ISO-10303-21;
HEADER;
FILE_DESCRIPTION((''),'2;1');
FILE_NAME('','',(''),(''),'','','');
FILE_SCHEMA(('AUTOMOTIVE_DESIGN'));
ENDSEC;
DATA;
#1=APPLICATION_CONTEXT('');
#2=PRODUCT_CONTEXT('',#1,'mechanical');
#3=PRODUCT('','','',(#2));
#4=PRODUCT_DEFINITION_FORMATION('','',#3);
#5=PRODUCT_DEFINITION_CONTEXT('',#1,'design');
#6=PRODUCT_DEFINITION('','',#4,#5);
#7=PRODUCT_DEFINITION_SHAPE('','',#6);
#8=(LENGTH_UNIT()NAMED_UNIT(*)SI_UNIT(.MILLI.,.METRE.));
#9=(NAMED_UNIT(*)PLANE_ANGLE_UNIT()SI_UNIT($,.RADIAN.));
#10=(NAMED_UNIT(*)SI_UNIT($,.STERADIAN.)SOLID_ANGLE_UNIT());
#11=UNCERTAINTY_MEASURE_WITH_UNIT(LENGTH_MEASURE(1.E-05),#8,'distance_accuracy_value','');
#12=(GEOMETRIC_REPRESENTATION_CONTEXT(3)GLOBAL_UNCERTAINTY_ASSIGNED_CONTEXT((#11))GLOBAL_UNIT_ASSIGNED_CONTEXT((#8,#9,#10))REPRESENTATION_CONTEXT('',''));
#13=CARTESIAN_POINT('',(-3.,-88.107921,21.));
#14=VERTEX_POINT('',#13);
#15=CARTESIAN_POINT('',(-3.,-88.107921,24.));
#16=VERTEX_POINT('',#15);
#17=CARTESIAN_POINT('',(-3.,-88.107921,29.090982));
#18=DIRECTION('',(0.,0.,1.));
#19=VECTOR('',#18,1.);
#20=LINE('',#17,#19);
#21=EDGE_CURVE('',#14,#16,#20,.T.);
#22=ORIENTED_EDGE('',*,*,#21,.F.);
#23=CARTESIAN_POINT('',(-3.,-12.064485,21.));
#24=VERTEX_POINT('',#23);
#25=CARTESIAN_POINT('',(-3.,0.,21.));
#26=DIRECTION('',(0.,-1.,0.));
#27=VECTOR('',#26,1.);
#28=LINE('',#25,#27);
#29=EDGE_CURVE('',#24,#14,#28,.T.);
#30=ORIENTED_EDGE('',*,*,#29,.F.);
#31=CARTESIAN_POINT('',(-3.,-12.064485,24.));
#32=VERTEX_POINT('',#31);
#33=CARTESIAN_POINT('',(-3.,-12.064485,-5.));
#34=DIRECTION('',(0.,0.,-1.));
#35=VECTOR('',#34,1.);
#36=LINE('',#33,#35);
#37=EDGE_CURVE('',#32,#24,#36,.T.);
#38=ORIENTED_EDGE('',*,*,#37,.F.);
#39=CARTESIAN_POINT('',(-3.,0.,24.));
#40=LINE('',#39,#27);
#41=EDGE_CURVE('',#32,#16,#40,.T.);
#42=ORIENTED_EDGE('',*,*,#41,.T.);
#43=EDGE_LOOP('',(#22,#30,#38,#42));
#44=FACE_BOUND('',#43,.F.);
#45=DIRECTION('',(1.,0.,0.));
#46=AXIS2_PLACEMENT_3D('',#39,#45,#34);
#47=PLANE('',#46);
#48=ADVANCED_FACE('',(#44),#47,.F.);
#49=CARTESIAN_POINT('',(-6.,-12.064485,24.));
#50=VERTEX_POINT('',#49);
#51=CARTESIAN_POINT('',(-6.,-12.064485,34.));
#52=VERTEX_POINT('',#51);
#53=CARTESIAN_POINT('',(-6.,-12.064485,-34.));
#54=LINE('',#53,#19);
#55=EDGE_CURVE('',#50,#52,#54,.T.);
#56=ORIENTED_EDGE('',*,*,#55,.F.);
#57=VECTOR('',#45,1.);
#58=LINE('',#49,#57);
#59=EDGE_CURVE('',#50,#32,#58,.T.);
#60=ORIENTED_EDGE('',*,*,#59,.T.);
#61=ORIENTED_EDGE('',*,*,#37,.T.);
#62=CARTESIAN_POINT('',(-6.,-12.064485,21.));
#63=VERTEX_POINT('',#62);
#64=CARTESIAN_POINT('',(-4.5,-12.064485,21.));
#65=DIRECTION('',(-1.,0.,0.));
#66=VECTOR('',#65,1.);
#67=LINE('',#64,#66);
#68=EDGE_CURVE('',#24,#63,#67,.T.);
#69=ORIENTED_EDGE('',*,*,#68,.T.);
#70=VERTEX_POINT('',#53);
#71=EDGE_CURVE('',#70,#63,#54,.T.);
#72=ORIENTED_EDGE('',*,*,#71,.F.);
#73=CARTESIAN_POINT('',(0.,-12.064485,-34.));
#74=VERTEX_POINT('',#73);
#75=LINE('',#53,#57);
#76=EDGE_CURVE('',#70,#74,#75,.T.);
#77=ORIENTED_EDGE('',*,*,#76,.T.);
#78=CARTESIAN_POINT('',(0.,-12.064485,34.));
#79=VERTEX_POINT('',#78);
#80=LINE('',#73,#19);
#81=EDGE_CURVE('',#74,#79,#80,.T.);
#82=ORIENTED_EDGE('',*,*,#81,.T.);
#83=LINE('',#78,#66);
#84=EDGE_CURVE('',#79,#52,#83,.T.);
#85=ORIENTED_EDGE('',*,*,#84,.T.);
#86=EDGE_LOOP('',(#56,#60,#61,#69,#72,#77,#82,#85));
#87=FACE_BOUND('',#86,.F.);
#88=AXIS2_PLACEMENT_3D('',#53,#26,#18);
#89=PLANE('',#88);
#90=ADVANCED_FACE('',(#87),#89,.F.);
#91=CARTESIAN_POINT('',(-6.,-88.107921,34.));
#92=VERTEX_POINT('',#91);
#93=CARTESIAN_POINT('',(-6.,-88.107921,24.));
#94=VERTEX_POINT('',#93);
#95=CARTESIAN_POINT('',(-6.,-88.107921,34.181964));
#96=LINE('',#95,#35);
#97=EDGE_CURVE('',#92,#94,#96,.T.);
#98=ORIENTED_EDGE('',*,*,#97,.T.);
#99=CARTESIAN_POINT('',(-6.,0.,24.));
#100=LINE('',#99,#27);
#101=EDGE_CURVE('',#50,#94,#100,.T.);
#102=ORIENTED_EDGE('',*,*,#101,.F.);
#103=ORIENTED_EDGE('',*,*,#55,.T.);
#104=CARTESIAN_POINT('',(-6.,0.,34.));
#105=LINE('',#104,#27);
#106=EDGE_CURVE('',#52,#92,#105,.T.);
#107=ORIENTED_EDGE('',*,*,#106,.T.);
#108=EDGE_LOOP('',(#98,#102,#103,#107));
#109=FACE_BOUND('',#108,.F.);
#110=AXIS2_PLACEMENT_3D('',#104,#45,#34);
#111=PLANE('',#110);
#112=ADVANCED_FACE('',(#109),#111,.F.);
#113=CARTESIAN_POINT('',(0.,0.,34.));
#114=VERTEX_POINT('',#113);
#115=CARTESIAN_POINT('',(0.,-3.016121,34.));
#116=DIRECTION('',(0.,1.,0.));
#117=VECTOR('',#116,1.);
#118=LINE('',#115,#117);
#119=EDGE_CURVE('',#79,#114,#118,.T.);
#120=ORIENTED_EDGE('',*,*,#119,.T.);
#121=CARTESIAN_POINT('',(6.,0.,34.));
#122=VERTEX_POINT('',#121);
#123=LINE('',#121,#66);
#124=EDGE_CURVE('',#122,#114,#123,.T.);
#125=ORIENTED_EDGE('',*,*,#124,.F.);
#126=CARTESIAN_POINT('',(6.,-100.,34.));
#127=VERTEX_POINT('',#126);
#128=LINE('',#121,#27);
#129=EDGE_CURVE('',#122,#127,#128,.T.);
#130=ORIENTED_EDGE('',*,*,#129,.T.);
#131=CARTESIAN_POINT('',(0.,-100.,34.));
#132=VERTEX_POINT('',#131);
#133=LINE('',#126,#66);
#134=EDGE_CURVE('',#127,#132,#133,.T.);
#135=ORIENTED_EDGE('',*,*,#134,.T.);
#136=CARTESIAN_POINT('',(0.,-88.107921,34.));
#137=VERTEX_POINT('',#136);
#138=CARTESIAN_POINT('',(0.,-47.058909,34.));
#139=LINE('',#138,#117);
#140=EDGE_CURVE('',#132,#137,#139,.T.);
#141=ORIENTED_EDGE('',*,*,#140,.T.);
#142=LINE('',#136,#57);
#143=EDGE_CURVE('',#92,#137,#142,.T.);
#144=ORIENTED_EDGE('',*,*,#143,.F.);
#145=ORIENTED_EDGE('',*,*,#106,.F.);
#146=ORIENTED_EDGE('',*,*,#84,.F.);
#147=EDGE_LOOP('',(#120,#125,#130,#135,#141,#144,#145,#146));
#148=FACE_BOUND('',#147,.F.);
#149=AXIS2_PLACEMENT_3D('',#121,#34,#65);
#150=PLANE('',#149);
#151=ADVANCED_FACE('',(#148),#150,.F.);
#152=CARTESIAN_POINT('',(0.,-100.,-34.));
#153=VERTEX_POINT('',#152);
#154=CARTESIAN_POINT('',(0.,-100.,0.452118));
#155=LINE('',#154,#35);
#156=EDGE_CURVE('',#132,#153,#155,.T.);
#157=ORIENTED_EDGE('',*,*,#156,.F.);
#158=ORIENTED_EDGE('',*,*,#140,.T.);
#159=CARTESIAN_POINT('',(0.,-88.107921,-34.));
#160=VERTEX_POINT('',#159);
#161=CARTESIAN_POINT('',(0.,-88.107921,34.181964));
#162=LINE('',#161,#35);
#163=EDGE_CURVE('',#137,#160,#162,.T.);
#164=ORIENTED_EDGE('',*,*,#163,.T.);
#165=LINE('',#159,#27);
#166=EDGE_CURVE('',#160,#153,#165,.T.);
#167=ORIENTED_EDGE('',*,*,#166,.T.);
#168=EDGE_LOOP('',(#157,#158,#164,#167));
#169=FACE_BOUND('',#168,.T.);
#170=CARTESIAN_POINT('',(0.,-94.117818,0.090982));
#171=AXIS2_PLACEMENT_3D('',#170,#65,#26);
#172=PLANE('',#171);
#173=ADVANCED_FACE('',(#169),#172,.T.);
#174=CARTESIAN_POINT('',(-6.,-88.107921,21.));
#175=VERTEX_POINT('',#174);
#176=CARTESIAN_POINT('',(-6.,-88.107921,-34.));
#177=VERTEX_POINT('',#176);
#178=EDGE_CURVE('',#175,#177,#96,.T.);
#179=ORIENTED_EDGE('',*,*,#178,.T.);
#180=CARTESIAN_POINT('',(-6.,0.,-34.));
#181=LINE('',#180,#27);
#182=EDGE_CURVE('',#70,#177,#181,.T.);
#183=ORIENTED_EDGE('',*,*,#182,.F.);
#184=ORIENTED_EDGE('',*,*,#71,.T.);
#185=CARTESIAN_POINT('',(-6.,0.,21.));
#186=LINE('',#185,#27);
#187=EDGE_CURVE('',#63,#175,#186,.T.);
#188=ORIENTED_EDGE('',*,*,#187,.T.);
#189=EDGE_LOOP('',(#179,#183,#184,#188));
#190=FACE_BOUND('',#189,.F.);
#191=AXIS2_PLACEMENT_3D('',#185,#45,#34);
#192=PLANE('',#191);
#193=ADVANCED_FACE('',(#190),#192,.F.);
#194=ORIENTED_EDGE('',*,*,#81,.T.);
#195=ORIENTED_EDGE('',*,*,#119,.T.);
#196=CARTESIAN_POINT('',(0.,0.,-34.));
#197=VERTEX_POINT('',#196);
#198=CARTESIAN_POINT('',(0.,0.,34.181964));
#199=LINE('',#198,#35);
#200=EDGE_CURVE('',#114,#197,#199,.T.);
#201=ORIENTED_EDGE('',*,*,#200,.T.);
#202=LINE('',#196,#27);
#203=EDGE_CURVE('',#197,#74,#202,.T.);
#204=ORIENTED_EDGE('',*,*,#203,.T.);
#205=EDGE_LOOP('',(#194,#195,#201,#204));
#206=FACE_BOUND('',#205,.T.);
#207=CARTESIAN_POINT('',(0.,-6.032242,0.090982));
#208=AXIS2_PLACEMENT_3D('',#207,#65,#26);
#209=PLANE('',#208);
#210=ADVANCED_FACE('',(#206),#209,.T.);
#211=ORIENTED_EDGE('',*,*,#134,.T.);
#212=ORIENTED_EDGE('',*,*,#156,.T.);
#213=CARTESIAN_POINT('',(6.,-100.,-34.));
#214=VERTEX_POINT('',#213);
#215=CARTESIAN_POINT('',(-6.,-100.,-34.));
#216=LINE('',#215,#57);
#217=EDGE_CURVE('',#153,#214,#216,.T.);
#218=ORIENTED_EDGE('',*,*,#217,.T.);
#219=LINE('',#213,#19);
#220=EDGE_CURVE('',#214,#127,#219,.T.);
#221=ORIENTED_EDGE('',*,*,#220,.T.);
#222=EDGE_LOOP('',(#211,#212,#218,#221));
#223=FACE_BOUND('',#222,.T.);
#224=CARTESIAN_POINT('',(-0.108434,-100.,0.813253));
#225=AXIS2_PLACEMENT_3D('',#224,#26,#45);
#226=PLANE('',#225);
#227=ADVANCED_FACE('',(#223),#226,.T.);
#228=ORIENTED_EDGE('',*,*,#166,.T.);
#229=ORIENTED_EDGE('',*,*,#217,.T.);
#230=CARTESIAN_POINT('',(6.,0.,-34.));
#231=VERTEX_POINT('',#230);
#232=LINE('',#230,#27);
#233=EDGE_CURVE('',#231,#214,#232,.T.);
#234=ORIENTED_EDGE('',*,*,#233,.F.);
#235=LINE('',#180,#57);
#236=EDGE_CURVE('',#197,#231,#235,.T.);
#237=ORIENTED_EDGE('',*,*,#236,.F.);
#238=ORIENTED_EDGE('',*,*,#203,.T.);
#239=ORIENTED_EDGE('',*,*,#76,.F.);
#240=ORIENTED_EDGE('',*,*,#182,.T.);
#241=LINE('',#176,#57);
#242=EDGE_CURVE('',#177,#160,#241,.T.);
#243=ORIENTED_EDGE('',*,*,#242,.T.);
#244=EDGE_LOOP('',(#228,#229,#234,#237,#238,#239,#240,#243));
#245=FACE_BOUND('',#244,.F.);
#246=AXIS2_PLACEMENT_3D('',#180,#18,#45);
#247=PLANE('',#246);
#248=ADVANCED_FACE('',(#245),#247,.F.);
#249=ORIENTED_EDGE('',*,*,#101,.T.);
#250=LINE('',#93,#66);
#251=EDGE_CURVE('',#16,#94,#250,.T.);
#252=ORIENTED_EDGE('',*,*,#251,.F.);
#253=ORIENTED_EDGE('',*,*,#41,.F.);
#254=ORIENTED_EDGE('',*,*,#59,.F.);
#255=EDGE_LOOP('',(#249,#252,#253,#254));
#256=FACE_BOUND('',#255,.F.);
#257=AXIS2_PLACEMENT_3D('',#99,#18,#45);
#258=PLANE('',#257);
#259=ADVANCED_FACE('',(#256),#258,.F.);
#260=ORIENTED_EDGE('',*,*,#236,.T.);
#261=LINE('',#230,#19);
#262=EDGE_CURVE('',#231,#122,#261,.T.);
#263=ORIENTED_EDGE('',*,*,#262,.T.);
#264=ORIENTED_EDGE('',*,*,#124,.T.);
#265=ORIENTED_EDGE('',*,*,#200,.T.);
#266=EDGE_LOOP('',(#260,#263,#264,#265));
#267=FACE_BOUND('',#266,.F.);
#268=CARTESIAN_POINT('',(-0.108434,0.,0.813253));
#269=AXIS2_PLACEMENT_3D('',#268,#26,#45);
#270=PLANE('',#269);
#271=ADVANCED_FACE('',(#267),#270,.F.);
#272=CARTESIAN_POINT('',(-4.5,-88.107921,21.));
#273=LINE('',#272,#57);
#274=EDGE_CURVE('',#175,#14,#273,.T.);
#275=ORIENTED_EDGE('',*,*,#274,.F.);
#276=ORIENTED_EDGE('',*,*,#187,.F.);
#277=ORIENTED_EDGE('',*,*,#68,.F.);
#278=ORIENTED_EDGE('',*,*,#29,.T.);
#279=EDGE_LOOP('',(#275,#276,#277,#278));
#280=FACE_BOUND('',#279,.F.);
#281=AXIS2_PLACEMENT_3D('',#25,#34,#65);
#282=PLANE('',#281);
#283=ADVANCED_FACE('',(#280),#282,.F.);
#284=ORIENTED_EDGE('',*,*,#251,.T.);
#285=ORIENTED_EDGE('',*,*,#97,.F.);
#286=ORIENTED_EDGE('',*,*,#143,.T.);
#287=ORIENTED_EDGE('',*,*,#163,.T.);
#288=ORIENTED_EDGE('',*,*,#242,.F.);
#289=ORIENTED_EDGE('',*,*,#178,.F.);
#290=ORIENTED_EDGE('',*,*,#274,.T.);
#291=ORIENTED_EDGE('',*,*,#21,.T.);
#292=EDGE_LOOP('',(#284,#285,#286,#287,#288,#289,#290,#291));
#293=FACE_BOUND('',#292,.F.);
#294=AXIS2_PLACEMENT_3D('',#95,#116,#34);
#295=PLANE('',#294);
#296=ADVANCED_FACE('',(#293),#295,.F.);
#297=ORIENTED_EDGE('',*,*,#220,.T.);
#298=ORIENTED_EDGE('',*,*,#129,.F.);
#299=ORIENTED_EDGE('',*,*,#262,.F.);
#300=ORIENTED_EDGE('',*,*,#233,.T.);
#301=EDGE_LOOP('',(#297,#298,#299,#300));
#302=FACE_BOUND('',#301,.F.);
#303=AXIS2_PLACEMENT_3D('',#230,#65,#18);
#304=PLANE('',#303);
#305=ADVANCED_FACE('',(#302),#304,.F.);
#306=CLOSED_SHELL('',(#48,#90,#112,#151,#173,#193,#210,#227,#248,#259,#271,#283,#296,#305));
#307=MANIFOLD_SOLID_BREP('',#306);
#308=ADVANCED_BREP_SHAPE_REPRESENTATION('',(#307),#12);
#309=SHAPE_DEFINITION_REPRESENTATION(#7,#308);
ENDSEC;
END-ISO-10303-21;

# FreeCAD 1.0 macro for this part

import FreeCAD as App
import Part
import Sketcher
from FreeCAD import Vector

doc = App.newDocument("Part")
body = doc.addObject("PartDesign::Body", "Body")

sketch1 = body.newObject("Sketcher::SketchObject", "Sketch")
sketch1.AttachmentSupport = (doc.getObject("XZ_Plane"), [""])
sketch1.MapMode = "FlatFace"
sketch1.addGeometry(Part.LineSegment(Vector(-6, -34, 0), Vector(6, -34, 0)), False)
sketch1.addGeometry(Part.LineSegment(Vector(6, -34, 0), Vector(6, 34, 0)), False)
sketch1.addGeometry(Part.LineSegment(Vector(6, 34, 0), Vector(-6, 34, 0)), False)
sketch1.addGeometry(Part.LineSegment(Vector(-6, 34, 0), Vector(-6, 24, 0)), False)
sketch1.addGeometry(Part.LineSegment(Vector(-6, 24, 0), Vector(-3, 24, 0)), False)
sketch1.addGeometry(Part.LineSegment(Vector(-3, 24, 0), Vector(-3, 21, 0)), False)
sketch1.addGeometry(Part.LineSegment(Vector(-3, 21, 0), Vector(-6, 21, 0)), False)
sketch1.addGeometry(Part.LineSegment(Vector(-6, 21, 0), Vector(-6, -34, 0)), False)
sketch1.addConstraint(Sketcher.Constraint("Coincident", 0, 2, 1, 1))
sketch1.addConstraint(Sketcher.Constraint("Coincident", 1, 2, 2, 1))
sketch1.addConstraint(Sketcher.Constraint("Coincident", 2, 2, 3, 1))
sketch1.addConstraint(Sketcher.Constraint("Coincident", 3, 2, 4, 1))
sketch1.addConstraint(Sketcher.Constraint("Coincident", 4, 2, 5, 1))
sketch1.addConstraint(Sketcher.Constraint("Coincident", 5, 2, 6, 1))
sketch1.addConstraint(Sketcher.Constraint("Coincident", 6, 2, 7, 1))
sketch1.addConstraint(Sketcher.Constraint("Coincident", 7, 2, 0, 1))
sketch1.addConstraint(Sketcher.Constraint("Horizontal", 0))
sketch1.addConstraint(Sketcher.Constraint("Vertical", 1))
sketch1.addConstraint(Sketcher.Constraint("Horizontal", 2))
sketch1.addConstraint(Sketcher.Constraint("Vertical", 3))
sketch1.addConstraint(Sketcher.Constraint("Horizontal", 4))
sketch1.addConstraint(Sketcher.Constraint("Vertical", 5))
sketch1.addConstraint(Sketcher.Constraint("Horizontal", 6))
sketch1.addConstraint(Sketcher.Constraint("Vertical", 7))
sketch1.addConstraint(Sketcher.Constraint("Symmetric", 0, 2, 2, 2, -1, 1))
sketch1.addConstraint(Sketcher.Constraint("Vertical", 3, 2, 6, 2))
sketch1.addConstraint(Sketcher.Constraint("Equal", 6, 5))
sketch1.addConstraint(Sketcher.Constraint("DistanceX", 0, 1, 0, 2, 12.0))
sketch1.addConstraint(Sketcher.Constraint("DistanceX", 4, 1, 4, 2, 3.0))
sketch1.addConstraint(Sketcher.Constraint("DistanceY", 1, 1, 1, 2, 68.0))
sketch1.addConstraint(Sketcher.Constraint("DistanceY", 3, 2, 3, 1, 10.0))
pad1 = body.newObject("PartDesign::Pad", "Pad")
pad1.Profile = sketch1
pad1.Length = 100

sketch2 = body.newObject("Sketcher::SketchObject", "Sketch001")
sketch2.AttachmentSupport = (doc.getObject("YZ_Plane"), [""])
sketch2.MapMode = "FlatFace"
sketch2.AttachmentOffset = App.Placement(Vector(0, 0, -6), App.Rotation())
sketch2.addGeometry(Part.LineSegment(Vector(-100, -34, 0), Vector(-100, 34, 0)), False)
sketch2.addGeometry(Part.LineSegment(Vector(-100, 34, 0), Vector(-88, 34, 0)), False)
sketch2.addGeometry(Part.LineSegment(Vector(-88, 34, 0), Vector(-88, -34, 0)), False)
sketch2.addGeometry(Part.LineSegment(Vector(-88, -34, 0), Vector(-100, -34, 0)), False)
sketch2.addConstraint(Sketcher.Constraint("Coincident", 0, 2, 1, 1))
sketch2.addConstraint(Sketcher.Constraint("Coincident", 1, 2, 2, 1))
sketch2.addConstraint(Sketcher.Constraint("Coincident", 2, 2, 3, 1))
sketch2.addConstraint(Sketcher.Constraint("Coincident", 3, 2, 0, 1))
sketch2.addConstraint(Sketcher.Constraint("Vertical", 0))
sketch2.addConstraint(Sketcher.Constraint("Horizontal", 1))
sketch2.addConstraint(Sketcher.Constraint("Vertical", 2))
sketch2.addConstraint(Sketcher.Constraint("Horizontal", 3))
sketch2.addConstraint(Sketcher.Constraint("DistanceY", 2, 2, -1, 1, 34.0))
sketch2.addConstraint(Sketcher.Constraint("DistanceX", 1, 1, 1, 2, 12.019794))
sketch2.addConstraint(Sketcher.Constraint("DistanceY", 0, 1, 0, 2, 68.181964))
sketch2.addConstraint(Sketcher.Constraint("DistanceX", 1, 2, -1, 1, 88.107921))
pocket1 = body.newObject("PartDesign::Pocket", "Pocket")
pocket1.Profile = sketch2
pocket1.Length = 6
pocket1.Reversed = True

sketch3 = body.newObject("Sketcher::SketchObject", "Sketch002")
sketch3.AttachmentSupport = (doc.getObject("YZ_Plane"), [""])
sketch3.MapMode = "FlatFace"
sketch3.AttachmentOffset = App.Placement(Vector(0, 0, -6), App.Rotation())
sketch3.addGeometry(Part.LineSegment(Vector(-12, 34, 0), Vector(0, 34, 0)), False)
sketch3.addGeometry(Part.LineSegment(Vector(0, 34, 0), Vector(0, -34, 0)), False)
sketch3.addGeometry(Part.LineSegment(Vector(0, -34, 0), Vector(-12, -34, 0)), False)
sketch3.addGeometry(Part.LineSegment(Vector(-12, -34, 0), Vector(-12, 34, 0)), False)
sketch3.addConstraint(Sketcher.Constraint("Coincident", 0, 2, 1, 1))
sketch3.addConstraint(Sketcher.Constraint("Coincident", 1, 2, 2, 1))
sketch3.addConstraint(Sketcher.Constraint("Coincident", 2, 2, 3, 1))
sketch3.addConstraint(Sketcher.Constraint("Coincident", 3, 2, 0, 1))
sketch3.addConstraint(Sketcher.Constraint("Horizontal", 0))
sketch3.addConstraint(Sketcher.Constraint("Vertical", 1))
sketch3.addConstraint(Sketcher.Constraint("Horizontal", 2))
sketch3.addConstraint(Sketcher.Constraint("Vertical", 3))
sketch3.addConstraint(Sketcher.Constraint("PointOnObject", 0, 2, -2))
sketch3.addConstraint(Sketcher.Constraint("DistanceY", 1, 2, -1, 1, 34.0))
sketch3.addConstraint(Sketcher.Constraint("DistanceX", 0, 1, 0, 2, 12.064485))
sketch3.addConstraint(Sketcher.Constraint("DistanceY", 1, 2, 1, 1, 68.181964))
pocket2 = body.newObject("PartDesign::Pocket", "Pocket001")
pocket2.Profile = sketch3
pocket2.Length = 6
pocket2.Reversed = True

doc.recompute()
